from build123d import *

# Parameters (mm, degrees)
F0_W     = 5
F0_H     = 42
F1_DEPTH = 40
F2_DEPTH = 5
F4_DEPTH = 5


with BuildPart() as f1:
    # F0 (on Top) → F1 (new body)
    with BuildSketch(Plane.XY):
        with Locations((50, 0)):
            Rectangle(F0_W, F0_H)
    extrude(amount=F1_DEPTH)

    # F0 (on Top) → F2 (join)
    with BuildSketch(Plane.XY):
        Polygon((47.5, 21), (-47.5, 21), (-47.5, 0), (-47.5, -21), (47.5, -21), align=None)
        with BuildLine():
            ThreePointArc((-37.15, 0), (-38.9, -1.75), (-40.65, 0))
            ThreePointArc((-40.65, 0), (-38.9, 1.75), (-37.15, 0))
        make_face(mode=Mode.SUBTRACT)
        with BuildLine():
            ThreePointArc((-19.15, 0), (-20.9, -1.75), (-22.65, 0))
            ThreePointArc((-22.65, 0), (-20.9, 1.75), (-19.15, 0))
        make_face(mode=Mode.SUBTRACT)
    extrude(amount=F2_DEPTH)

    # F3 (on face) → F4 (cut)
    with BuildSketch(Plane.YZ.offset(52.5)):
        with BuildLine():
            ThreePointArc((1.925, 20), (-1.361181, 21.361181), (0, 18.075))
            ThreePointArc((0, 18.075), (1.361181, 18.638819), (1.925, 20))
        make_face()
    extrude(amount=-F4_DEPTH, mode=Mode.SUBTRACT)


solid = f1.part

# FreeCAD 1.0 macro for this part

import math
import FreeCAD as App
import Part
import Sketcher
from FreeCAD import Vector
Q = App.Units.Quantity


def add_polygon(sketch, points):
    """Adds a closed chain of lines whose ends are joined by coincident constraints."""
    first, n = sketch.GeometryCount, len(points)
    for a, b in zip(points, points[1:] + points[:1]):
        sketch.addGeometry(Part.LineSegment(App.Vector(*a, 0), App.Vector(*b, 0)), False)
    for i in range(n):
        sketch.addConstraint(Sketcher.Constraint("Coincident", first + i, 2, first + (i + 1) % n, 1))

doc = App.newDocument("Part")
body = doc.addObject("PartDesign::Body", "Body")

sketch1 = body.newObject("Sketcher::SketchObject", "Sketch")
sketch1.AttachmentSupport = (doc.getObject("XY_Plane"), [""])
sketch1.MapMode = "FlatFace"
add_polygon(sketch1, [(48, 21), (48, -21), (52, -21), (52, 21)])
sketch1.addConstraint(Sketcher.Constraint("Vertical", 0))
sketch1.addConstraint(Sketcher.Constraint("Horizontal", 1))
sketch1.addConstraint(Sketcher.Constraint("Vertical", 2))
sketch1.addConstraint(Sketcher.Constraint("Horizontal", 3))
sketch1.addConstraint(Sketcher.Constraint("DistanceX", 1, 1, 1, 2, Q("5 mm")))
sketch1.addConstraint(Sketcher.Constraint("DistanceY", 0, 2, 0, 1, Q("42 mm")))
sketch1.addConstraint(Sketcher.Constraint("DistanceY", 0, 2, -1, 1, Q("21 mm")))
sketch1.addConstraint(Sketcher.Constraint("DistanceX", -1, 1, 0, 2, Q("47.5 mm")))
pad1 = body.newObject("PartDesign::Pad", "Pad")
pad1.Profile = sketch1
pad1.Length = 40

sketch2 = body.newObject("Sketcher::SketchObject", "Sketch001")
sketch2.AttachmentSupport = (doc.getObject("XY_Plane"), [""])
sketch2.MapMode = "FlatFace"
add_polygon(sketch2, [(47.5, 21), (-47.5, 21), (-47.5, -21), (47.5, -21)])
sketch2.addGeometry(Part.Circle(Vector(-38.9, 0, 0), Vector(0, 0, 1), 1.8), False)
sketch2.addGeometry(Part.Circle(Vector(-20.9, 0, 0), Vector(0, 0, 1), 1.8), False)
sketch2.addConstraint(Sketcher.Constraint("Horizontal", 0))
sketch2.addConstraint(Sketcher.Constraint("Vertical", 1))
sketch2.addConstraint(Sketcher.Constraint("Horizontal", 2))
sketch2.addConstraint(Sketcher.Constraint("Vertical", 3))
sketch2.addConstraint(Sketcher.Constraint("Equal", 4, 5))
sketch2.addConstraint(Sketcher.Constraint("Symmetric", 0, 2, 2, 2, -1, 1))
sketch2.addConstraint(Sketcher.Constraint("PointOnObject", 4, 3, -1))
sketch2.addConstraint(Sketcher.Constraint("PointOnObject", 5, 3, -1))
sketch2.addConstraint(Sketcher.Constraint("Diameter", 4, Q("3.5 mm")))
sketch2.addConstraint(Sketcher.Constraint("DistanceX", 0, 2, 0, 1, Q("95 mm")))
sketch2.addConstraint(Sketcher.Constraint("DistanceY", 1, 2, 1, 1, Q("42 mm")))
sketch2.addConstraint(Sketcher.Constraint("DistanceX", 4, 3, 5, 3, Q("18 mm")))
sketch2.addConstraint(Sketcher.Constraint("DistanceX", 4, 3, -1, 1, Q("38.9 mm")))
pad2 = body.newObject("PartDesign::Pad", "Pad001")
pad2.Profile = sketch2
pad2.Length = 5

sketch3 = body.newObject("Sketcher::SketchObject", "Sketch002")
sketch3.AttachmentSupport = (doc.getObject("YZ_Plane"), [""])
sketch3.MapMode = "FlatFace"
sketch3.AttachmentOffset = App.Placement(Vector(0, 0, 52.5), App.Rotation())
sketch3.addGeometry(Part.ArcOfCircle(Part.Circle(Vector(0, 20, 0), Vector(0, 0, 1), 1.9), math.radians(0), math.radians(270)), False)
sketch3.addGeometry(Part.ArcOfCircle(Part.Circle(Vector(0, 20, 0), Vector(0, 0, 1), 1.9), math.radians(-90), math.radians(0)), False)
sketch3.addConstraint(Sketcher.Constraint("Tangent", 0, 1, 1, 2))
sketch3.addConstraint(Sketcher.Constraint("Coincident", 1, 1, 0, 2))
sketch3.addConstraint(Sketcher.Constraint("PointOnObject", 0, 3, -2))
sketch3.addConstraint(Sketcher.Constraint("PointOnObject", 1, 1, -2))
sketch3.addConstraint(Sketcher.Constraint("Horizontal", 1, 3, 0, 1))
sketch3.addConstraint(Sketcher.Constraint("DistanceY", -1, 1, 0, 3, Q("20 mm")))
sketch3.addConstraint(Sketcher.Constraint("Radius", 0, Q("1.925 mm")))
pocket1 = body.newObject("PartDesign::Pocket", "Pocket")
pocket1.Profile = sketch3
pocket1.Length = 5

doc.recompute()
